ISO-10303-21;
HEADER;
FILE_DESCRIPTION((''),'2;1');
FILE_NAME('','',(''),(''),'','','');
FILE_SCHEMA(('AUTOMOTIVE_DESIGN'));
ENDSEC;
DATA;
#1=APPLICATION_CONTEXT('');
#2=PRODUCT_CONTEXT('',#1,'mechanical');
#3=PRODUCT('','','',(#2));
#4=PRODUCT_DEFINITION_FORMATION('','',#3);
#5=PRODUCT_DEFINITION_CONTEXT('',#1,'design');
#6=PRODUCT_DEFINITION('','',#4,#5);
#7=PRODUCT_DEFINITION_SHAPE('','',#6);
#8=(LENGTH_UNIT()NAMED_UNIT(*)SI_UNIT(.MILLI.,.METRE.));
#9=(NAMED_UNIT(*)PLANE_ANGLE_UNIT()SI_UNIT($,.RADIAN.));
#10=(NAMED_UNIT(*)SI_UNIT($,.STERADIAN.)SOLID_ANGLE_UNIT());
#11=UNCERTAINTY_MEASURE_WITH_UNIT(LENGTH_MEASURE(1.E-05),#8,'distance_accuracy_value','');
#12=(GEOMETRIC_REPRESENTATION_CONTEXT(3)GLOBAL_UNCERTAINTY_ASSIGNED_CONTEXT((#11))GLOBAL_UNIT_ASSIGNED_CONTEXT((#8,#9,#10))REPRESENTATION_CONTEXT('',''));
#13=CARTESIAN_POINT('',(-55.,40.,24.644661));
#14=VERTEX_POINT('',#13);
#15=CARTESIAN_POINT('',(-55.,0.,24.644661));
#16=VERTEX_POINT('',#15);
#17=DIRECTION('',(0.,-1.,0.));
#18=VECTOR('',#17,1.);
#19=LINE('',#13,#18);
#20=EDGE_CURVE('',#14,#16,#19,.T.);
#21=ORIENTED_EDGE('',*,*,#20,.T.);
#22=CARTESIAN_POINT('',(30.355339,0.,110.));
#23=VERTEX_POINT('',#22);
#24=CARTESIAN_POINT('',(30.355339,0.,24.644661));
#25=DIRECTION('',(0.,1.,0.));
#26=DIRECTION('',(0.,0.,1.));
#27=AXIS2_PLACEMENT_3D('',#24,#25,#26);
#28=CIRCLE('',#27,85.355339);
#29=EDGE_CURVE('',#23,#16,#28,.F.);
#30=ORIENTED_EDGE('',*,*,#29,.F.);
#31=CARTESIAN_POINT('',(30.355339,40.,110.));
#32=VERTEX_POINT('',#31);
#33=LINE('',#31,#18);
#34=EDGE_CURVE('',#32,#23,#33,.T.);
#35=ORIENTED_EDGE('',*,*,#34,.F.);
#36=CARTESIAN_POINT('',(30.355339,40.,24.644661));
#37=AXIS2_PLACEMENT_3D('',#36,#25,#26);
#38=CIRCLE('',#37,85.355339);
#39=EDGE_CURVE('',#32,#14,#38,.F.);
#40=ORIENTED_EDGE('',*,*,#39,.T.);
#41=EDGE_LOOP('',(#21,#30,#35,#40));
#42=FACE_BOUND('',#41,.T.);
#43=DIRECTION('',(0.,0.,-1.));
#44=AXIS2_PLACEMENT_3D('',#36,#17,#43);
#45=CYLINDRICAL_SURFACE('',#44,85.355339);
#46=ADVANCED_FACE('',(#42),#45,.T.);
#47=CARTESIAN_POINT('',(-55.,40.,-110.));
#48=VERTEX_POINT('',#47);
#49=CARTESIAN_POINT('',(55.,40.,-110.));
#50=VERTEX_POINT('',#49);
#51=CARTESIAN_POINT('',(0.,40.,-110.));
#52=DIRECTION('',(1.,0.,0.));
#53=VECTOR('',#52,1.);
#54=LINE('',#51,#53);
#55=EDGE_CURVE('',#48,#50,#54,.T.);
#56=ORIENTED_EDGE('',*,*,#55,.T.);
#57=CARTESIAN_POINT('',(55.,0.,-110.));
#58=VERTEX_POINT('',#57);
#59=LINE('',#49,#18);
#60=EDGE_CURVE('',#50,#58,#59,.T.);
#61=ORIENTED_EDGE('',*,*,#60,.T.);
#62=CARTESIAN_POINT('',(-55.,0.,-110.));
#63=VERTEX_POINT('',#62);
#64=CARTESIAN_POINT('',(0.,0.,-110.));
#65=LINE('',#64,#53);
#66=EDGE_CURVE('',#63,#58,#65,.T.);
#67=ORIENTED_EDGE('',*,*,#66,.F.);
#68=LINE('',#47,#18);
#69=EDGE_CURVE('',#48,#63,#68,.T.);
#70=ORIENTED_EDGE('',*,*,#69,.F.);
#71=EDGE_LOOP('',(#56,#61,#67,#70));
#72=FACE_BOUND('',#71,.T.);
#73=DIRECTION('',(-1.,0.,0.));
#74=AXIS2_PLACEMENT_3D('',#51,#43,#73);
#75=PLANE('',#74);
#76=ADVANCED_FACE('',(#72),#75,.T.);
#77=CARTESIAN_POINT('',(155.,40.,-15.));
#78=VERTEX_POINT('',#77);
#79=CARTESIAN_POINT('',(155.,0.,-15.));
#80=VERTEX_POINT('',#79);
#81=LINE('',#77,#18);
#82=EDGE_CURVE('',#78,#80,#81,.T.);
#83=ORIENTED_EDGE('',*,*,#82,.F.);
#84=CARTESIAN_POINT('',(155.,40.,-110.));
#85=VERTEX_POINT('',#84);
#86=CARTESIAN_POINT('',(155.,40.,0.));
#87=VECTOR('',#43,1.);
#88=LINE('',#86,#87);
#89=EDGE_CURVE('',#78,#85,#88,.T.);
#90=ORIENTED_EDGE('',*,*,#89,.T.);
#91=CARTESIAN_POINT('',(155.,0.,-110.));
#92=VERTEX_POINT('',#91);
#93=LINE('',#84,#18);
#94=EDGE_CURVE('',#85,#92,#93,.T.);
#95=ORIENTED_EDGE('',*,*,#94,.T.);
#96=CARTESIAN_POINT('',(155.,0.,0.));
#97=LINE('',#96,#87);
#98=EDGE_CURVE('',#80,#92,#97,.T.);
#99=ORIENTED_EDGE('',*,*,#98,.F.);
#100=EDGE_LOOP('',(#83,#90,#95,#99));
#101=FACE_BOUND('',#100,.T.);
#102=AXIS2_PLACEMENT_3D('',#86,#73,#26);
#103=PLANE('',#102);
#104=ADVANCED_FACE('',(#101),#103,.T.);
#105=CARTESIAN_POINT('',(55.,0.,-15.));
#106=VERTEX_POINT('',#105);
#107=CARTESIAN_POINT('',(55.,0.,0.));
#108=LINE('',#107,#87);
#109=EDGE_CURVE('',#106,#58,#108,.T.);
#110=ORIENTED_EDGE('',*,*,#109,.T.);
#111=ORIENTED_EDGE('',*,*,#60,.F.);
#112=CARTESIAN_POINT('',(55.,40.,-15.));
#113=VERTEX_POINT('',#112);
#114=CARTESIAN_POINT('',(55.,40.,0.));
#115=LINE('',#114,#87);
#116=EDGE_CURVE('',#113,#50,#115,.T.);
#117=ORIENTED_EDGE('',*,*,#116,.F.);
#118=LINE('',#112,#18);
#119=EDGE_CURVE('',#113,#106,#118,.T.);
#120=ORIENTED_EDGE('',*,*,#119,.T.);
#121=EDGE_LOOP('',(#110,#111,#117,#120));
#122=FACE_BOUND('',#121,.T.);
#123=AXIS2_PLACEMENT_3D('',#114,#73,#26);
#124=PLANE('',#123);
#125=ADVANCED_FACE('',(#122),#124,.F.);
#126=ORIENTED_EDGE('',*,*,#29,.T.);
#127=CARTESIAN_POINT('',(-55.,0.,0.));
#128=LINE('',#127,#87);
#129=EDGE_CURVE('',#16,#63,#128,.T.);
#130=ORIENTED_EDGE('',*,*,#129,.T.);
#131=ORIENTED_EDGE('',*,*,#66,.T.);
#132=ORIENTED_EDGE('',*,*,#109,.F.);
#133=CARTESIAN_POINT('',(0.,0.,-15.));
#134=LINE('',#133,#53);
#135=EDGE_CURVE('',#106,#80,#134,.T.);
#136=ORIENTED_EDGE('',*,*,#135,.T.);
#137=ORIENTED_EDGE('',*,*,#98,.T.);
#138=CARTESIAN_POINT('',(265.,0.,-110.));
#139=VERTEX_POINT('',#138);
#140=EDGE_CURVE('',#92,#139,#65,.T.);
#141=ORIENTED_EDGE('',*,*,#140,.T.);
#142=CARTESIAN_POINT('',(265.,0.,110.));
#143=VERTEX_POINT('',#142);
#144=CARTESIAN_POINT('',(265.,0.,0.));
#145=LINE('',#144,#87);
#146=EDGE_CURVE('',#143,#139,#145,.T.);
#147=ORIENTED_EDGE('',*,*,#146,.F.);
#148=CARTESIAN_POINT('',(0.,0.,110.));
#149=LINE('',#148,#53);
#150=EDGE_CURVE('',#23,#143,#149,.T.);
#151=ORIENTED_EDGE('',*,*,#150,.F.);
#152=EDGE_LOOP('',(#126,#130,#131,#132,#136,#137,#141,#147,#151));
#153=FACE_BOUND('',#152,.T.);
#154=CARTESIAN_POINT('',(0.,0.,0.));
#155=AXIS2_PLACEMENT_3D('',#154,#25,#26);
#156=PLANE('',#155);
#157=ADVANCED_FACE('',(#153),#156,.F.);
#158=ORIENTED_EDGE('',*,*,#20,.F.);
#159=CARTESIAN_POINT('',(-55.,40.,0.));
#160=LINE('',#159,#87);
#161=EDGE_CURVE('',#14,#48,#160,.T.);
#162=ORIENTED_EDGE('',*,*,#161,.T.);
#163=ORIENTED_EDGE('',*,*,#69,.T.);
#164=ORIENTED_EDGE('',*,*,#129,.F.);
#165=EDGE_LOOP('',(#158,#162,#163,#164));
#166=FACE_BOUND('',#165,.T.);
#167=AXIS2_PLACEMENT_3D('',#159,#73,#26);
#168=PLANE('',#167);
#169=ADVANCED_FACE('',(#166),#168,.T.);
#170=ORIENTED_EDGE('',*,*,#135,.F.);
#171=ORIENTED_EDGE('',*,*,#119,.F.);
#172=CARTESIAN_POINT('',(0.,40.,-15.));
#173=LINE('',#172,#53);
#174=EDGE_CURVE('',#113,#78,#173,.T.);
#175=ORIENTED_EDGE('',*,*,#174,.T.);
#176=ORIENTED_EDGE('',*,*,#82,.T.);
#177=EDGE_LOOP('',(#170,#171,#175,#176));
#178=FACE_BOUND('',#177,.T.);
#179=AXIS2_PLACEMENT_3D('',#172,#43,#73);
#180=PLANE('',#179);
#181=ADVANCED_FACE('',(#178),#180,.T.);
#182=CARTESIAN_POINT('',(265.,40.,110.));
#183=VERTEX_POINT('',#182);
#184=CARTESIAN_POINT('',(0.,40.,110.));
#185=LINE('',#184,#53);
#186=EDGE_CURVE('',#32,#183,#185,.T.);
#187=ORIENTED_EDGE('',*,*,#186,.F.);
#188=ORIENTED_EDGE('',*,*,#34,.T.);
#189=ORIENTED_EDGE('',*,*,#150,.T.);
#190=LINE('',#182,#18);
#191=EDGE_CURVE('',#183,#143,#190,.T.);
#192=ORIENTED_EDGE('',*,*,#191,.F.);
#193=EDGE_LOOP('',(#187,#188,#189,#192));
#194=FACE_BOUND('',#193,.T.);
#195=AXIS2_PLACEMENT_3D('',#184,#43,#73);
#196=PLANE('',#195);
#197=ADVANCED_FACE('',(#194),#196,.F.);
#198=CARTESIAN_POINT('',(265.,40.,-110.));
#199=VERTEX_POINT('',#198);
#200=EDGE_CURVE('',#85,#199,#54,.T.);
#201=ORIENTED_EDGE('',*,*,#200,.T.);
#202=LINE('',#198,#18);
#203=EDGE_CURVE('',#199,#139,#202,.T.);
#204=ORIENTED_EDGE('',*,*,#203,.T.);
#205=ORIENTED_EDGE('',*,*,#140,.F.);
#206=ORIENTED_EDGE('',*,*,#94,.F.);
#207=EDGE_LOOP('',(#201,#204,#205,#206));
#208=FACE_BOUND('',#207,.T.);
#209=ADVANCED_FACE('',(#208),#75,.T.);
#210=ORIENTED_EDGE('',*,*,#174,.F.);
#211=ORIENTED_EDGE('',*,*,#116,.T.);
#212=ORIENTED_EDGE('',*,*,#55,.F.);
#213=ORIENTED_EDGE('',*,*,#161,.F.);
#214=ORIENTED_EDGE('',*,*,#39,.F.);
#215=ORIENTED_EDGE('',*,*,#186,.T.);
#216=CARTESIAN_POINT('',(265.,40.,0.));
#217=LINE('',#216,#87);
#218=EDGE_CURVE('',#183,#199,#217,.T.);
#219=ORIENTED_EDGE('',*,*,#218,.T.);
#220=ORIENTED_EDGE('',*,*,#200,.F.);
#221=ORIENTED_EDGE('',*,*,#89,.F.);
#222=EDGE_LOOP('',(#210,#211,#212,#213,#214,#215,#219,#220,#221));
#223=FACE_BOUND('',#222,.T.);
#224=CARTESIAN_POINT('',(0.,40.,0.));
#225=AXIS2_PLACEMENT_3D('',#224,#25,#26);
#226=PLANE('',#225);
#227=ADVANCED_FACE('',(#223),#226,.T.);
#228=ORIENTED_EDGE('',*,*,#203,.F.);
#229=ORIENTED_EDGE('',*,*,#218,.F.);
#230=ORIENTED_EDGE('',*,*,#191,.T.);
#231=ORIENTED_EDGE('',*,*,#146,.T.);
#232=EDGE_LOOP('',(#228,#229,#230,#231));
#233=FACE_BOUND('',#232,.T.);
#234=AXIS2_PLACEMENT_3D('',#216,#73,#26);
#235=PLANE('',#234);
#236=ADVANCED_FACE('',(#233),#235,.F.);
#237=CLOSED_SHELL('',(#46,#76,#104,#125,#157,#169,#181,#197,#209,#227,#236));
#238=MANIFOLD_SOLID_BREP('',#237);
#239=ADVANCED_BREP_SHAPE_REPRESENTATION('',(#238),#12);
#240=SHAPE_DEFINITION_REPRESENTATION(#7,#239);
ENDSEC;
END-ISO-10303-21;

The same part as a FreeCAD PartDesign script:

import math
import FreeCAD as App
import Part
import Sketcher
from FreeCAD import Vector
Q = App.Units.Quantity

doc = App.newDocument("Part")
params = doc.addObject("Spreadsheet::Sheet", "Params")
for row, (alias, value) in enumerate([
    ("sketch1_width", "110 mm"),
    ("sketch1_width2", "100 mm"),
    ("sketch1_height", "220 mm"),
    ("sketch1_height2", "95 mm"),
    ("pad1_length", "40 mm"),
], start=1):
    params.set(f"A{row}", alias)
    params.set(f"B{row}", "=" + value)
    params.setAlias(f"B{row}", alias)

body = doc.addObject("PartDesign::Body", "Body")

# Sketch on XZ plane
sketch1 = body.newObject("Sketcher::SketchObject", "Sketch")
sketch1.AttachmentSupport = (doc.getObject("XZ_Plane"), [""])
sketch1.MapMode = "FlatFace"
sketch1.addGeometry([
    Part.ArcOfCircle(Part.Circle(Vector(30, 25, 0), Vector(0, 0, 1), 85), math.radians(90), math.radians(180)),  # 0
    Part.LineSegment(Vector(30, 110, 0), Vector(265, 110, 0)),  # 1
    Part.LineSegment(Vector(265, 110, 0), Vector(265, -110, 0)),  # 2
    Part.LineSegment(Vector(265, -110, 0), Vector(155, -110, 0)),  # 3
    Part.LineSegment(Vector(155, -110, 0), Vector(155, -15, 0)),  # 4
    Part.LineSegment(Vector(155, -15, 0), Vector(55, -15, 0)),  # 5
    Part.LineSegment(Vector(55, -15, 0), Vector(55, -110, 0)),  # 6
    Part.LineSegment(Vector(55, -110, 0), Vector(-55, -110, 0)),  # 7
    Part.LineSegment(Vector(-55, -110, 0), Vector(-55, 25, 0)),  # 8
], False)
sketch1.addConstraint([
    Sketcher.Constraint("Tangent", 0, 1, 1, 1),
    Sketcher.Constraint("Coincident", 1, 2, 2, 1),
    Sketcher.Constraint("Coincident", 2, 2, 3, 1),
    Sketcher.Constraint("Coincident", 3, 2, 4, 1),
    Sketcher.Constraint("Coincident", 4, 2, 5, 1),
    Sketcher.Constraint("Coincident", 5, 2, 6, 1),
    Sketcher.Constraint("Coincident", 6, 2, 7, 1),
    Sketcher.Constraint("Coincident", 7, 2, 8, 1),
    Sketcher.Constraint("Tangent", 8, 2, 0, 2),
    Sketcher.Constraint("Horizontal", 1),
    Sketcher.Constraint("Vertical", 2),
    Sketcher.Constraint("Horizontal", 3),
    Sketcher.Constraint("Vertical", 4),
    Sketcher.Constraint("Horizontal", 5),
    Sketcher.Constraint("Vertical", 6),
    Sketcher.Constraint("Horizontal", 7),
    Sketcher.Constraint("Vertical", 8),
    Sketcher.Constraint("Horizontal", 3, 2, 6, 2),
    Sketcher.Constraint("Equal", 3, 7),
    Sketcher.Constraint("DistanceX", 3, 2, 3, 1, Q("110 mm")),
    Sketcher.Constraint("DistanceX", 5, 2, 5, 1, Q("100 mm")),
    Sketcher.Constraint("DistanceY", 2, 2, 2, 1, Q("220 mm")),
    Sketcher.Constraint("DistanceY", 4, 1, 4, 2, Q("95 mm")),
    Sketcher.Constraint("DistanceY", -1, 1, 0, 1, Q("110 mm")),
    Sketcher.Constraint("DistanceX", -1, 1, 1, 2, Q("265 mm")),
    Sketcher.Constraint("Radius", 0, Q("85.355339 mm")),
])
sketch1.setExpression("Constraints[19]", "Params.sketch1_width")
sketch1.setExpression("Constraints[20]", "Params.sketch1_width2")
sketch1.setExpression("Constraints[21]", "Params.sketch1_height")
sketch1.setExpression("Constraints[22]", "Params.sketch1_height2")
pad1 = body.newObject("PartDesign::Pad", "Pad")
pad1.Profile = sketch1
pad1.setExpression("Length", "Params.pad1_length")
pad1.Reversed = True

doc.recompute()
